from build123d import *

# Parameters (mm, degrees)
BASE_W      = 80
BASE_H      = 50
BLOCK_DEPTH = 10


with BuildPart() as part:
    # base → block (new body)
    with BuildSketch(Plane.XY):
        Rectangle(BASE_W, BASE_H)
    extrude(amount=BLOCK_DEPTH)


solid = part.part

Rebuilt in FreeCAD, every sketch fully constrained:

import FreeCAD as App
import Part
import Sketcher

V = App.Vector
Q = App.Units.Quantity

doc = App.newDocument("Part")
body = doc.addObject("PartDesign::Body", "Body")

# Sketch on XY plane
sketch1 = body.newObject("Sketcher::SketchObject", "Sketch")
sketch1.AttachmentSupport = (doc.getObject("XY_Plane"), [""])
sketch1.MapMode = "FlatFace"
sketch1.addGeometry([
    Part.LineSegment(V(-40, 25, 0), V(-40, -25, 0)),
    Part.LineSegment(V(-40, -25, 0), V(40, -25, 0)),
    Part.LineSegment(V(40, -25, 0), V(40, 25, 0)),
    Part.LineSegment(V(40, 25, 0), V(-40, 25, 0)),
], False)
sketch1.addConstraint([
    Sketcher.Constraint("Coincident", 0, 2, 1, 1),
    Sketcher.Constraint("Coincident", 1, 2, 2, 1),
    Sketcher.Constraint("Coincident", 2, 2, 3, 1),
    Sketcher.Constraint("Coincident", 3, 2, 0, 1),
    Sketcher.Constraint("Vertical", 0),
    Sketcher.Constraint("Horizontal", 1),
    Sketcher.Constraint("Vertical", 2),
    Sketcher.Constraint("Horizontal", 3),
    Sketcher.Constraint("Symmetric", 0, 2, 2, 2, -1, 1),
    Sketcher.Constraint("DistanceX", 1, 1, 1, 2, Q("80 mm")),
    Sketcher.Constraint("DistanceY", 0, 2, 0, 1, Q("50 mm")),
])
pad1 = body.newObject("PartDesign::Pad", "Pad")
pad1.Profile = sketch1
pad1.Length = 10

doc.recompute()
